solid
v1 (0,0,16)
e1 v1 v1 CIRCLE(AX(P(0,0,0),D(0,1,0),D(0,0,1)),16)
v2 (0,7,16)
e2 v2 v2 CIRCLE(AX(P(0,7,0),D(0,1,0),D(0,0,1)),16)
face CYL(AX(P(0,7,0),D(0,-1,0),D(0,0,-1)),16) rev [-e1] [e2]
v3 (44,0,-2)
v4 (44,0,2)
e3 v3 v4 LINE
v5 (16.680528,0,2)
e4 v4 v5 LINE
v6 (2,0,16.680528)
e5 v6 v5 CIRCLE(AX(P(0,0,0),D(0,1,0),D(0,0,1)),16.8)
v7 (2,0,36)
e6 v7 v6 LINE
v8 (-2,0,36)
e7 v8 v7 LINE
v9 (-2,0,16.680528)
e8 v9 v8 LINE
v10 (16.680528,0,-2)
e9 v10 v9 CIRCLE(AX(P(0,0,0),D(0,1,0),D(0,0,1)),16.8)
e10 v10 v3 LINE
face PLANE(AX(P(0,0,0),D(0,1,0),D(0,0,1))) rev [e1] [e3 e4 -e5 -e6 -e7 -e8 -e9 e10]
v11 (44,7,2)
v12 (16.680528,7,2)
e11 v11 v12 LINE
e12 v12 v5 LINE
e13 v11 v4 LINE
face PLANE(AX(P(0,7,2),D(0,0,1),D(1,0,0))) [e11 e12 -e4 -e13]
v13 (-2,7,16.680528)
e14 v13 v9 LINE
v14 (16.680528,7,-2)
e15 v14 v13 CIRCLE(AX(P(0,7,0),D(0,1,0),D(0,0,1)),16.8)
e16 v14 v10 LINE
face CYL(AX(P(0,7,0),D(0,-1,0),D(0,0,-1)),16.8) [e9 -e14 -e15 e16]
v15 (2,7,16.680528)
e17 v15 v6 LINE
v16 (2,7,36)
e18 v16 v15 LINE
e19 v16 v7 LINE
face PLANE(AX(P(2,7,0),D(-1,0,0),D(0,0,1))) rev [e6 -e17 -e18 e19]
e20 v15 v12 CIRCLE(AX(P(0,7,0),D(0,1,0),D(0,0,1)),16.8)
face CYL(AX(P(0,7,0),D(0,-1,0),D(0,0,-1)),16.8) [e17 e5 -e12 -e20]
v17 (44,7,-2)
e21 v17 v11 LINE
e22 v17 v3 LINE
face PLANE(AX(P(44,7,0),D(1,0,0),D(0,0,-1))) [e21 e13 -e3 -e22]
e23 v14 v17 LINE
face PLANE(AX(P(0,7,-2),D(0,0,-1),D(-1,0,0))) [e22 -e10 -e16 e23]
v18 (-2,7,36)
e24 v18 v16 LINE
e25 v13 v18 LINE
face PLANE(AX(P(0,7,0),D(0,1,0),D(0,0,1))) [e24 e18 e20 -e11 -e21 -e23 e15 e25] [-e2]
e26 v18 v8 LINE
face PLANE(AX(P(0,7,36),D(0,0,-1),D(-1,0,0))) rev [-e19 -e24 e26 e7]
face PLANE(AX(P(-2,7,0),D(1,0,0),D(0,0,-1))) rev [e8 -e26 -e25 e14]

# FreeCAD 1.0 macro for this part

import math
import FreeCAD as App
import Part
import Sketcher
Q = App.Units.Quantity

doc = App.newDocument("Part")
params = doc.addObject("Spreadsheet::Sheet", "Params")
for row, (alias, value) in enumerate([
    ("sketch1_diameter", "32 mm"),
    ("sketch1_radius", "16.8 mm"),
    ("sketch1_width", "4 mm"),
    ("pad1_length", "7 mm"),
], start=1):
    params.set(f"A{row}", alias)
    params.set(f"B{row}", "=" + value)
    params.setAlias(f"B{row}", alias)

body = doc.addObject("PartDesign::Body", "Body")

# Sketch on XZ plane
sketch1 = body.newObject("Sketcher::SketchObject", "Sketch")
sketch1.AttachmentSupport = (doc.getObject("XZ_Plane"), [""])
sketch1.MapMode = "FlatFace"
sketch1.addGeometry(Part.LineSegment(App.Vector(2, 36, 0), App.Vector(2, 16.7, 0)), False)
sketch1.addGeometry(Part.ArcOfCircle(Part.Circle(App.Vector(0, 0, 0), App.Vector(0, 0, 1), 16.8), math.radians(7), math.radians(83)), False)
sketch1.addGeometry(Part.LineSegment(App.Vector(16.7, 2, 0), App.Vector(44, 2, 0)), False)
sketch1.addGeometry(Part.LineSegment(App.Vector(44, 2, 0), App.Vector(44, -2, 0)), False)
sketch1.addGeometry(Part.LineSegment(App.Vector(44, -2, 0), App.Vector(16.7, -2, 0)), False)
sketch1.addGeometry(Part.ArcOfCircle(Part.Circle(App.Vector(0, 0, 0), App.Vector(0, 0, 1), 16.8), math.radians(97), math.radians(353)), False)
sketch1.addGeometry(Part.LineSegment(App.Vector(-2, 16.7, 0), App.Vector(-2, 36, 0)), False)
sketch1.addGeometry(Part.LineSegment(App.Vector(-2, 36, 0), App.Vector(2, 36, 0)), False)
sketch1.addGeometry(Part.Circle(App.Vector(0, 0, 0), App.Vector(0, 0, 1), 16), False)
sketch1.addConstraint(Sketcher.Constraint("Coincident", 0, 2, 1, 2))
sketch1.addConstraint(Sketcher.Constraint("Coincident", 1, 1, 2, 1))
sketch1.addConstraint(Sketcher.Constraint("Coincident", 2, 2, 3, 1))
sketch1.addConstraint(Sketcher.Constraint("Coincident", 3, 2, 4, 1))
sketch1.addConstraint(Sketcher.Constraint("Coincident", 4, 2, 5, 2))
sketch1.addConstraint(Sketcher.Constraint("Coincident", 5, 1, 6, 1))
sketch1.addConstraint(Sketcher.Constraint("Coincident", 6, 2, 7, 1))
sketch1.addConstraint(Sketcher.Constraint("Coincident", 7, 2, 0, 1))
sketch1.addConstraint(Sketcher.Constraint("Vertical", 0))
sketch1.addConstraint(Sketcher.Constraint("Horizontal", 2))
sketch1.addConstraint(Sketcher.Constraint("Vertical", 3))
sketch1.addConstraint(Sketcher.Constraint("Horizontal", 4))
sketch1.addConstraint(Sketcher.Constraint("Vertical", 6))
sketch1.addConstraint(Sketcher.Constraint("Horizontal", 7))
sketch1.addConstraint(Sketcher.Constraint("Coincident", 1, 3, -1, 1))
sketch1.addConstraint(Sketcher.Constraint("Coincident", 5, 3, -1, 1))
sketch1.addConstraint(Sketcher.Constraint("Coincident", 8, 3, -1, 1))
sketch1.addConstraint(Sketcher.Constraint("Equal", 1, 5))
sketch1.addConstraint(Sketcher.Constraint("Horizontal", 0, 2, 5, 1))
sketch1.addConstraint(Sketcher.Constraint("Vertical", 1, 1, 4, 2))
sketch1.addConstraint(Sketcher.Constraint("Equal", 7, 3))
sketch1.addConstraint(Sketcher.Constraint("Diameter", 8, Q("32 mm")))
sketch1.addConstraint(Sketcher.Constraint("Radius", 1, Q("16.8 mm")))
sketch1.addConstraint(Sketcher.Constraint("DistanceX", 7, 1, 7, 2, Q("4 mm")))
sketch1.addConstraint(Sketcher.Constraint("DistanceX", -1, 1, 2, 2, Q("44 mm")))
sketch1.addConstraint(Sketcher.Constraint("DistanceY", -1, 1, 6, 2, Q("36 mm")))
sketch1.setExpression("Constraints[21]", "Params.sketch1_diameter")
sketch1.setExpression("Constraints[22]", "Params.sketch1_radius")
sketch1.setExpression("Constraints[23]", "Params.sketch1_width")
pad1 = body.newObject("PartDesign::Pad", "Pad")
pad1.Profile = sketch1
pad1.setExpression("Length", "Params.pad1_length")
pad1.Reversed = True

doc.recompute()
